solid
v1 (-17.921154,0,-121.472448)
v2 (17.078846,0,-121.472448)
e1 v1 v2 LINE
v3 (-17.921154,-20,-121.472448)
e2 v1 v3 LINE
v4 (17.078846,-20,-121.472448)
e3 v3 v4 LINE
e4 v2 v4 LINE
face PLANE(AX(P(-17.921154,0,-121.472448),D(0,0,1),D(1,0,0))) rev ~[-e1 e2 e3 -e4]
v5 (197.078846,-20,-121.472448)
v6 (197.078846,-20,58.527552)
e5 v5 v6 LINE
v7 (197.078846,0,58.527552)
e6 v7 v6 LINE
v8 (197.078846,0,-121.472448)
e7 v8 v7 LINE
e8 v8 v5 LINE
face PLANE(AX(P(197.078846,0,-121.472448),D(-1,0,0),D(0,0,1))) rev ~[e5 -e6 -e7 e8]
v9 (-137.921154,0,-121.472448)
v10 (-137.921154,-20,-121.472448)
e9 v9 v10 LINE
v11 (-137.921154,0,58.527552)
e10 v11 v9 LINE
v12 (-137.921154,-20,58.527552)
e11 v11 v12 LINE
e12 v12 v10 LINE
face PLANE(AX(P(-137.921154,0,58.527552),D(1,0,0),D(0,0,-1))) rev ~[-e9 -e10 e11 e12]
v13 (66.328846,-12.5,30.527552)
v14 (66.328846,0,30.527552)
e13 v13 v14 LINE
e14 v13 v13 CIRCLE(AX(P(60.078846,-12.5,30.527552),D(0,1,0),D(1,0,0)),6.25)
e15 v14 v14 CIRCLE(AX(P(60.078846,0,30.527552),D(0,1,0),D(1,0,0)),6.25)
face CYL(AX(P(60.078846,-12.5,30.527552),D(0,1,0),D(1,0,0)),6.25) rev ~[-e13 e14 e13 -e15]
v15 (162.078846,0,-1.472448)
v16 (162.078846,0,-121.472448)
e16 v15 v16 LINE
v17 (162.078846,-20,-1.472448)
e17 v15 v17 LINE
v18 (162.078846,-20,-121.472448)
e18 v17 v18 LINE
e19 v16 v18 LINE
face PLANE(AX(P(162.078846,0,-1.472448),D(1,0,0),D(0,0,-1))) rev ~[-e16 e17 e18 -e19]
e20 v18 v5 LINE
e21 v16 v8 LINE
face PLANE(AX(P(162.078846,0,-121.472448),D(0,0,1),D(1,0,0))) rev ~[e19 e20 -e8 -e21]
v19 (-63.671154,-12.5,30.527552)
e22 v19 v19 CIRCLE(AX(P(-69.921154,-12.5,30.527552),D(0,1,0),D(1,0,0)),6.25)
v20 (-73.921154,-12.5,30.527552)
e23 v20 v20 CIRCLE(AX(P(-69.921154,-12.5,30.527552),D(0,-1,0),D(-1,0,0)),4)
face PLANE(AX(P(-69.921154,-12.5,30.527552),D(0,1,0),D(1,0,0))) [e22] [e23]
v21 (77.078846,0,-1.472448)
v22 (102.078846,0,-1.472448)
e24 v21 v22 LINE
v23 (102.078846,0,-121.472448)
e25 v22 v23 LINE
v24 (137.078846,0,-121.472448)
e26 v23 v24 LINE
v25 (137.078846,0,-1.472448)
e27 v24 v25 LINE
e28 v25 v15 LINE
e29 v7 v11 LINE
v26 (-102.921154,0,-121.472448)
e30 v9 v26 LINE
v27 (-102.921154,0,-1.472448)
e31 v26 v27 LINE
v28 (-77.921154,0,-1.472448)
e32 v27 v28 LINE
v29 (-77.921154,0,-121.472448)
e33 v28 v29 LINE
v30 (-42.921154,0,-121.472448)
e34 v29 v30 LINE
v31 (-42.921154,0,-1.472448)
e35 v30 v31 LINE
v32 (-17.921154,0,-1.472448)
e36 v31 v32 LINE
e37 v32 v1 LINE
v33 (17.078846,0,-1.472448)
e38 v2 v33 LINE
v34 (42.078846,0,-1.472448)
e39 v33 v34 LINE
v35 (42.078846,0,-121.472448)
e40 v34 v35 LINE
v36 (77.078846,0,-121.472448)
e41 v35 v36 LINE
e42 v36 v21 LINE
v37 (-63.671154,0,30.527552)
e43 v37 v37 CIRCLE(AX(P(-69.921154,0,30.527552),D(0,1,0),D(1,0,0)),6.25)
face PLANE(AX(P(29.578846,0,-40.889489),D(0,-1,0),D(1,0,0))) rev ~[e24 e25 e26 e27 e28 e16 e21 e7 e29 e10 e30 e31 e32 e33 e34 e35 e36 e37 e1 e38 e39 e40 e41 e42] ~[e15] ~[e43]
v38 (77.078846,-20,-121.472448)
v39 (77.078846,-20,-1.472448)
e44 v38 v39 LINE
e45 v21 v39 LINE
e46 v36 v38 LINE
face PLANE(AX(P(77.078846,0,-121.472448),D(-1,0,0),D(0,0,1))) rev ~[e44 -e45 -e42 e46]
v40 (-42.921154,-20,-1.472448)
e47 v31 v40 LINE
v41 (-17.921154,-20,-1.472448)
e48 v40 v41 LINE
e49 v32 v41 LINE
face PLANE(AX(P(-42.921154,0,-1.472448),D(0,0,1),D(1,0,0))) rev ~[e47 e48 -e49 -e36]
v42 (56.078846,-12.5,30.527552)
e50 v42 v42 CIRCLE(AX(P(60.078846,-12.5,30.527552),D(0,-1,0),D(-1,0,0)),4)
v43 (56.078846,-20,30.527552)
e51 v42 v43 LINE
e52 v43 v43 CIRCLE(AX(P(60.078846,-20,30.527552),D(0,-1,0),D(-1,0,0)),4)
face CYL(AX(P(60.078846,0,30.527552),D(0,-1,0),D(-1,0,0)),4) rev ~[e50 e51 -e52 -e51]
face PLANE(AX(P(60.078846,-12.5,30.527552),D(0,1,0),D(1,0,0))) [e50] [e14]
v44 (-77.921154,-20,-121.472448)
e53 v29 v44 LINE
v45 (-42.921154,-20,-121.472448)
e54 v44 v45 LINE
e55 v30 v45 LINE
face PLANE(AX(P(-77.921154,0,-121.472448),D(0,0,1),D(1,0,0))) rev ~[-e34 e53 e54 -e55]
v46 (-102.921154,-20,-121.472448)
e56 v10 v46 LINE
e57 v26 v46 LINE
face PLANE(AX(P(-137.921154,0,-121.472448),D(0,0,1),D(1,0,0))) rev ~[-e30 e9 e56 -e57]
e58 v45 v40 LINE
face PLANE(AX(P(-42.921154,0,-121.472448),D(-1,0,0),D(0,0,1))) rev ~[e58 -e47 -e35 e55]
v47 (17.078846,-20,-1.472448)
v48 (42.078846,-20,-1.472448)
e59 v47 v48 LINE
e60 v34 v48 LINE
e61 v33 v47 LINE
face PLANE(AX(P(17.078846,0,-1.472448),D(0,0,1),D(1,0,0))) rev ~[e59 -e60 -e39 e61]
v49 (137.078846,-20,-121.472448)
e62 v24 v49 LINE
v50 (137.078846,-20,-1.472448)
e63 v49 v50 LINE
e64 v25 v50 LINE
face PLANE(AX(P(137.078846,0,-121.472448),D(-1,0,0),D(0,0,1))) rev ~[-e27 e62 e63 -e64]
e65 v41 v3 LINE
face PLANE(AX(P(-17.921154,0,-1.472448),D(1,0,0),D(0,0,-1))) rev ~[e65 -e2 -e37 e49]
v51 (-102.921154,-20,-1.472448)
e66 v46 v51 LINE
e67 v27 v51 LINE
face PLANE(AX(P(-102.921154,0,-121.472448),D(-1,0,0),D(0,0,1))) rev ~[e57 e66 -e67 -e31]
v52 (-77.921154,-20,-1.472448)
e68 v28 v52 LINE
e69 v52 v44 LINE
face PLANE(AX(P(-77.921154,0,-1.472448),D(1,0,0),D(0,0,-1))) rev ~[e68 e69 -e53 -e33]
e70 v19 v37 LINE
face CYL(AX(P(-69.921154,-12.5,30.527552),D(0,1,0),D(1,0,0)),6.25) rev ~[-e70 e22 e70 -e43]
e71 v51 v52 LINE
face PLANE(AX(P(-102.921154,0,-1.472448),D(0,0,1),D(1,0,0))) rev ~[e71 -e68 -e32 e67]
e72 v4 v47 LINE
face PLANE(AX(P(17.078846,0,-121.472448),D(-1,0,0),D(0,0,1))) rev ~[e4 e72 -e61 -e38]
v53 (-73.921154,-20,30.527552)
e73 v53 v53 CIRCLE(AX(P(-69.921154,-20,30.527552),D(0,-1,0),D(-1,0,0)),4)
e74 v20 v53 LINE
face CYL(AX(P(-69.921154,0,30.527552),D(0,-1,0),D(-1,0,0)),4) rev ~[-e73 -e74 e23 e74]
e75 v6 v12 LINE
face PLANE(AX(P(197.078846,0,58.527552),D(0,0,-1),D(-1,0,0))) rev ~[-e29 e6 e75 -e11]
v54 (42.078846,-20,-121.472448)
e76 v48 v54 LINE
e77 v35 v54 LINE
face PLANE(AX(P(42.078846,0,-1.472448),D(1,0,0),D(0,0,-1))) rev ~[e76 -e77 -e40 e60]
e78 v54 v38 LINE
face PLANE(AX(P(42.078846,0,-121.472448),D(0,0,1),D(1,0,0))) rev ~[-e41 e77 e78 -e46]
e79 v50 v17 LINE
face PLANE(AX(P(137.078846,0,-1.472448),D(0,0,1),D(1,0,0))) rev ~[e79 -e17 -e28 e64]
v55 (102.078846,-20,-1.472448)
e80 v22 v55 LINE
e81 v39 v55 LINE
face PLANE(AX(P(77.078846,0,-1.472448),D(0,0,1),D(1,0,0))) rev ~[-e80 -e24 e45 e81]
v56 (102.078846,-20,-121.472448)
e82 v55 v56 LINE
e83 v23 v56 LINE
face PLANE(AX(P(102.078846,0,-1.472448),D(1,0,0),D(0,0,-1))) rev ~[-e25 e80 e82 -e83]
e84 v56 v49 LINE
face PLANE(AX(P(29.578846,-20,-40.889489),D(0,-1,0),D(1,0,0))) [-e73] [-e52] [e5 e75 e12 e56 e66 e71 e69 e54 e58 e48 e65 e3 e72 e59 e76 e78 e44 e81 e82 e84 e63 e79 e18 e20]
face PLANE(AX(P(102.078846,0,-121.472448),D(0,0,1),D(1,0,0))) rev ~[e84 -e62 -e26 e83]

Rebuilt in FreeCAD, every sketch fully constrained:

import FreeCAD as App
import Part
import Sketcher

V = App.Vector
Q = App.Units.Quantity


def add_polygon(sketch, points):
    """Adds a closed chain of lines whose ends are joined by coincident constraints."""
    first, n = sketch.GeometryCount, len(points)
    for a, b in zip(points, points[1:] + points[:1]):
        sketch.addGeometry(Part.LineSegment(App.Vector(*a, 0), App.Vector(*b, 0)), False)
    for i in range(n):
        sketch.addConstraint(Sketcher.Constraint("Coincident", first + i, 2, first + (i + 1) % n, 1))

doc = App.newDocument("Part")
body = doc.addObject("PartDesign::Body", "Body")

sketch1 = doc.addObject("Sketcher::SketchObject", "Sketch")
body.addObject(sketch1)
sketch1.AttachmentSupport = (doc.XZ_Plane, [""])
sketch1.MapMode = "FlatFace"
add_polygon(sketch1, [(197, 59), (-138, 59), (-138, -121), (-103, -121), (-103, -1), (-78, -1), (-78, -121), (-43, -121), (-43, -1), (-18, -1), (-18, -121), (17, -121), (17, -1), (42, -1), (42, -121), (77, -121), (77, -1), (102, -1), (102, -121), (137, -121), (137, -1), (162, -1), (162, -121), (197, -121)])
sketch1.addConstraint([
    Sketcher.Constraint("Horizontal", 0),
    Sketcher.Constraint("Vertical", 1),
    Sketcher.Constraint("Horizontal", 2),
    Sketcher.Constraint("Vertical", 3),
    Sketcher.Constraint("Horizontal", 4),
    Sketcher.Constraint("Vertical", 5),
    Sketcher.Constraint("Horizontal", 6),
    Sketcher.Constraint("Vertical", 7),
    Sketcher.Constraint("Horizontal", 8),
    Sketcher.Constraint("Vertical", 9),
    Sketcher.Constraint("Horizontal", 10),
    Sketcher.Constraint("Vertical", 11),
    Sketcher.Constraint("Horizontal", 12),
    Sketcher.Constraint("Vertical", 13),
    Sketcher.Constraint("Horizontal", 14),
    Sketcher.Constraint("Vertical", 15),
    Sketcher.Constraint("Horizontal", 16),
    Sketcher.Constraint("Vertical", 17),
    Sketcher.Constraint("Horizontal", 18),
    Sketcher.Constraint("Vertical", 19),
    Sketcher.Constraint("Horizontal", 20),
    Sketcher.Constraint("Vertical", 21),
    Sketcher.Constraint("Horizontal", 22),
    Sketcher.Constraint("Vertical", 23),
    Sketcher.Constraint("Horizontal", 2, 2, 5, 2),
    Sketcher.Constraint("Horizontal", 4, 2, 7, 2),
    Sketcher.Constraint("Horizontal", 6, 2, 9, 2),
    Sketcher.Constraint("Horizontal", 8, 2, 11, 2),
    Sketcher.Constraint("Horizontal", 10, 2, 13, 2),
    Sketcher.Constraint("Horizontal", 12, 2, 15, 2),
    Sketcher.Constraint("Horizontal", 14, 2, 17, 2),
    Sketcher.Constraint("Horizontal", 16, 2, 19, 2),
    Sketcher.Constraint("Horizontal", 18, 2, 21, 2),
    Sketcher.Constraint("Equal", 2, 6),
    Sketcher.Constraint("Equal", 4, 8),
    Sketcher.Constraint("Equal", 6, 10),
    Sketcher.Constraint("Equal", 8, 12),
    Sketcher.Constraint("Equal", 10, 14),
    Sketcher.Constraint("Equal", 12, 16),
    Sketcher.Constraint("Equal", 14, 18),
    Sketcher.Constraint("Equal", 16, 20),
    Sketcher.Constraint("Equal", 18, 22),
    Sketcher.Constraint("DistanceX", 0, 2, 0, 1, Q("335 mm")),
    Sketcher.Constraint("DistanceX", 2, 1, 2, 2, Q("35 mm")),
    Sketcher.Constraint("DistanceY", 1, 2, 1, 1, Q("180 mm")),
    Sketcher.Constraint("DistanceY", 3, 1, 3, 2, Q("120 mm")),
    Sketcher.Constraint("DistanceY", -1, 1, 0, 2, Q("58.527552 mm")),
    Sketcher.Constraint("DistanceX", 0, 2, -1, 1, Q("137.921154 mm")),
])
pad1 = doc.addObject("PartDesign::Pad", "Pad")
body.addObject(pad1)
pad1.Profile = sketch1
pad1.Length = 20

sketch2 = doc.addObject("Sketcher::SketchObject", "Sketch001")
body.addObject(sketch2)
sketch2.AttachmentSupport = (doc.XZ_Plane, [""])
sketch2.MapMode = "FlatFace"
sketch2.addGeometry(Part.Circle(V(-69.9, 30.5, 0), V(0, 0, 1), 4), False)
sketch2.addConstraint([
    Sketcher.Constraint("Diameter", 0, Q("8 mm")),
    Sketcher.Constraint("DistanceY", -1, 1, 0, 3, Q("30.527552 mm")),
    Sketcher.Constraint("DistanceX", 0, 3, -1, 1, Q("69.921154 mm")),
])
doc.recompute()
hole = doc.addObject("PartDesign::Hole", "Hole")
body.addObject(hole)
hole.Profile = sketch2
hole.ThreadType = "None"
hole.Diameter = 8
hole.DepthType = "ThroughAll"
hole.HoleCutType = "Counterbore"
hole.HoleCutDiameter = 12.5
hole.HoleCutDepth = 12.5
hole.Reversed = True

sketch3 = doc.addObject("Sketcher::SketchObject", "Sketch002")
body.addObject(sketch3)
sketch3.AttachmentSupport = (doc.XZ_Plane, [""])
sketch3.MapMode = "FlatFace"
sketch3.addGeometry(Part.Circle(V(60.1, 30.5, 0), V(0, 0, 1), 4), False)
sketch3.addConstraint([
    Sketcher.Constraint("Diameter", 0, Q("8 mm")),
    Sketcher.Constraint("DistanceY", -1, 1, 0, 3, Q("30.527552 mm")),
    Sketcher.Constraint("DistanceX", -1, 1, 0, 3, Q("60.078846 mm")),
])
doc.recompute()
hole2 = doc.addObject("PartDesign::Hole", "Hole001")
body.addObject(hole2)
hole2.Profile = sketch3
hole2.ThreadType = "None"
hole2.Diameter = 8
hole2.DepthType = "ThroughAll"
hole2.HoleCutType = "Counterbore"
hole2.HoleCutDiameter = 12.5
hole2.HoleCutDepth = 12.5
hole2.Reversed = True

doc.recompute()
